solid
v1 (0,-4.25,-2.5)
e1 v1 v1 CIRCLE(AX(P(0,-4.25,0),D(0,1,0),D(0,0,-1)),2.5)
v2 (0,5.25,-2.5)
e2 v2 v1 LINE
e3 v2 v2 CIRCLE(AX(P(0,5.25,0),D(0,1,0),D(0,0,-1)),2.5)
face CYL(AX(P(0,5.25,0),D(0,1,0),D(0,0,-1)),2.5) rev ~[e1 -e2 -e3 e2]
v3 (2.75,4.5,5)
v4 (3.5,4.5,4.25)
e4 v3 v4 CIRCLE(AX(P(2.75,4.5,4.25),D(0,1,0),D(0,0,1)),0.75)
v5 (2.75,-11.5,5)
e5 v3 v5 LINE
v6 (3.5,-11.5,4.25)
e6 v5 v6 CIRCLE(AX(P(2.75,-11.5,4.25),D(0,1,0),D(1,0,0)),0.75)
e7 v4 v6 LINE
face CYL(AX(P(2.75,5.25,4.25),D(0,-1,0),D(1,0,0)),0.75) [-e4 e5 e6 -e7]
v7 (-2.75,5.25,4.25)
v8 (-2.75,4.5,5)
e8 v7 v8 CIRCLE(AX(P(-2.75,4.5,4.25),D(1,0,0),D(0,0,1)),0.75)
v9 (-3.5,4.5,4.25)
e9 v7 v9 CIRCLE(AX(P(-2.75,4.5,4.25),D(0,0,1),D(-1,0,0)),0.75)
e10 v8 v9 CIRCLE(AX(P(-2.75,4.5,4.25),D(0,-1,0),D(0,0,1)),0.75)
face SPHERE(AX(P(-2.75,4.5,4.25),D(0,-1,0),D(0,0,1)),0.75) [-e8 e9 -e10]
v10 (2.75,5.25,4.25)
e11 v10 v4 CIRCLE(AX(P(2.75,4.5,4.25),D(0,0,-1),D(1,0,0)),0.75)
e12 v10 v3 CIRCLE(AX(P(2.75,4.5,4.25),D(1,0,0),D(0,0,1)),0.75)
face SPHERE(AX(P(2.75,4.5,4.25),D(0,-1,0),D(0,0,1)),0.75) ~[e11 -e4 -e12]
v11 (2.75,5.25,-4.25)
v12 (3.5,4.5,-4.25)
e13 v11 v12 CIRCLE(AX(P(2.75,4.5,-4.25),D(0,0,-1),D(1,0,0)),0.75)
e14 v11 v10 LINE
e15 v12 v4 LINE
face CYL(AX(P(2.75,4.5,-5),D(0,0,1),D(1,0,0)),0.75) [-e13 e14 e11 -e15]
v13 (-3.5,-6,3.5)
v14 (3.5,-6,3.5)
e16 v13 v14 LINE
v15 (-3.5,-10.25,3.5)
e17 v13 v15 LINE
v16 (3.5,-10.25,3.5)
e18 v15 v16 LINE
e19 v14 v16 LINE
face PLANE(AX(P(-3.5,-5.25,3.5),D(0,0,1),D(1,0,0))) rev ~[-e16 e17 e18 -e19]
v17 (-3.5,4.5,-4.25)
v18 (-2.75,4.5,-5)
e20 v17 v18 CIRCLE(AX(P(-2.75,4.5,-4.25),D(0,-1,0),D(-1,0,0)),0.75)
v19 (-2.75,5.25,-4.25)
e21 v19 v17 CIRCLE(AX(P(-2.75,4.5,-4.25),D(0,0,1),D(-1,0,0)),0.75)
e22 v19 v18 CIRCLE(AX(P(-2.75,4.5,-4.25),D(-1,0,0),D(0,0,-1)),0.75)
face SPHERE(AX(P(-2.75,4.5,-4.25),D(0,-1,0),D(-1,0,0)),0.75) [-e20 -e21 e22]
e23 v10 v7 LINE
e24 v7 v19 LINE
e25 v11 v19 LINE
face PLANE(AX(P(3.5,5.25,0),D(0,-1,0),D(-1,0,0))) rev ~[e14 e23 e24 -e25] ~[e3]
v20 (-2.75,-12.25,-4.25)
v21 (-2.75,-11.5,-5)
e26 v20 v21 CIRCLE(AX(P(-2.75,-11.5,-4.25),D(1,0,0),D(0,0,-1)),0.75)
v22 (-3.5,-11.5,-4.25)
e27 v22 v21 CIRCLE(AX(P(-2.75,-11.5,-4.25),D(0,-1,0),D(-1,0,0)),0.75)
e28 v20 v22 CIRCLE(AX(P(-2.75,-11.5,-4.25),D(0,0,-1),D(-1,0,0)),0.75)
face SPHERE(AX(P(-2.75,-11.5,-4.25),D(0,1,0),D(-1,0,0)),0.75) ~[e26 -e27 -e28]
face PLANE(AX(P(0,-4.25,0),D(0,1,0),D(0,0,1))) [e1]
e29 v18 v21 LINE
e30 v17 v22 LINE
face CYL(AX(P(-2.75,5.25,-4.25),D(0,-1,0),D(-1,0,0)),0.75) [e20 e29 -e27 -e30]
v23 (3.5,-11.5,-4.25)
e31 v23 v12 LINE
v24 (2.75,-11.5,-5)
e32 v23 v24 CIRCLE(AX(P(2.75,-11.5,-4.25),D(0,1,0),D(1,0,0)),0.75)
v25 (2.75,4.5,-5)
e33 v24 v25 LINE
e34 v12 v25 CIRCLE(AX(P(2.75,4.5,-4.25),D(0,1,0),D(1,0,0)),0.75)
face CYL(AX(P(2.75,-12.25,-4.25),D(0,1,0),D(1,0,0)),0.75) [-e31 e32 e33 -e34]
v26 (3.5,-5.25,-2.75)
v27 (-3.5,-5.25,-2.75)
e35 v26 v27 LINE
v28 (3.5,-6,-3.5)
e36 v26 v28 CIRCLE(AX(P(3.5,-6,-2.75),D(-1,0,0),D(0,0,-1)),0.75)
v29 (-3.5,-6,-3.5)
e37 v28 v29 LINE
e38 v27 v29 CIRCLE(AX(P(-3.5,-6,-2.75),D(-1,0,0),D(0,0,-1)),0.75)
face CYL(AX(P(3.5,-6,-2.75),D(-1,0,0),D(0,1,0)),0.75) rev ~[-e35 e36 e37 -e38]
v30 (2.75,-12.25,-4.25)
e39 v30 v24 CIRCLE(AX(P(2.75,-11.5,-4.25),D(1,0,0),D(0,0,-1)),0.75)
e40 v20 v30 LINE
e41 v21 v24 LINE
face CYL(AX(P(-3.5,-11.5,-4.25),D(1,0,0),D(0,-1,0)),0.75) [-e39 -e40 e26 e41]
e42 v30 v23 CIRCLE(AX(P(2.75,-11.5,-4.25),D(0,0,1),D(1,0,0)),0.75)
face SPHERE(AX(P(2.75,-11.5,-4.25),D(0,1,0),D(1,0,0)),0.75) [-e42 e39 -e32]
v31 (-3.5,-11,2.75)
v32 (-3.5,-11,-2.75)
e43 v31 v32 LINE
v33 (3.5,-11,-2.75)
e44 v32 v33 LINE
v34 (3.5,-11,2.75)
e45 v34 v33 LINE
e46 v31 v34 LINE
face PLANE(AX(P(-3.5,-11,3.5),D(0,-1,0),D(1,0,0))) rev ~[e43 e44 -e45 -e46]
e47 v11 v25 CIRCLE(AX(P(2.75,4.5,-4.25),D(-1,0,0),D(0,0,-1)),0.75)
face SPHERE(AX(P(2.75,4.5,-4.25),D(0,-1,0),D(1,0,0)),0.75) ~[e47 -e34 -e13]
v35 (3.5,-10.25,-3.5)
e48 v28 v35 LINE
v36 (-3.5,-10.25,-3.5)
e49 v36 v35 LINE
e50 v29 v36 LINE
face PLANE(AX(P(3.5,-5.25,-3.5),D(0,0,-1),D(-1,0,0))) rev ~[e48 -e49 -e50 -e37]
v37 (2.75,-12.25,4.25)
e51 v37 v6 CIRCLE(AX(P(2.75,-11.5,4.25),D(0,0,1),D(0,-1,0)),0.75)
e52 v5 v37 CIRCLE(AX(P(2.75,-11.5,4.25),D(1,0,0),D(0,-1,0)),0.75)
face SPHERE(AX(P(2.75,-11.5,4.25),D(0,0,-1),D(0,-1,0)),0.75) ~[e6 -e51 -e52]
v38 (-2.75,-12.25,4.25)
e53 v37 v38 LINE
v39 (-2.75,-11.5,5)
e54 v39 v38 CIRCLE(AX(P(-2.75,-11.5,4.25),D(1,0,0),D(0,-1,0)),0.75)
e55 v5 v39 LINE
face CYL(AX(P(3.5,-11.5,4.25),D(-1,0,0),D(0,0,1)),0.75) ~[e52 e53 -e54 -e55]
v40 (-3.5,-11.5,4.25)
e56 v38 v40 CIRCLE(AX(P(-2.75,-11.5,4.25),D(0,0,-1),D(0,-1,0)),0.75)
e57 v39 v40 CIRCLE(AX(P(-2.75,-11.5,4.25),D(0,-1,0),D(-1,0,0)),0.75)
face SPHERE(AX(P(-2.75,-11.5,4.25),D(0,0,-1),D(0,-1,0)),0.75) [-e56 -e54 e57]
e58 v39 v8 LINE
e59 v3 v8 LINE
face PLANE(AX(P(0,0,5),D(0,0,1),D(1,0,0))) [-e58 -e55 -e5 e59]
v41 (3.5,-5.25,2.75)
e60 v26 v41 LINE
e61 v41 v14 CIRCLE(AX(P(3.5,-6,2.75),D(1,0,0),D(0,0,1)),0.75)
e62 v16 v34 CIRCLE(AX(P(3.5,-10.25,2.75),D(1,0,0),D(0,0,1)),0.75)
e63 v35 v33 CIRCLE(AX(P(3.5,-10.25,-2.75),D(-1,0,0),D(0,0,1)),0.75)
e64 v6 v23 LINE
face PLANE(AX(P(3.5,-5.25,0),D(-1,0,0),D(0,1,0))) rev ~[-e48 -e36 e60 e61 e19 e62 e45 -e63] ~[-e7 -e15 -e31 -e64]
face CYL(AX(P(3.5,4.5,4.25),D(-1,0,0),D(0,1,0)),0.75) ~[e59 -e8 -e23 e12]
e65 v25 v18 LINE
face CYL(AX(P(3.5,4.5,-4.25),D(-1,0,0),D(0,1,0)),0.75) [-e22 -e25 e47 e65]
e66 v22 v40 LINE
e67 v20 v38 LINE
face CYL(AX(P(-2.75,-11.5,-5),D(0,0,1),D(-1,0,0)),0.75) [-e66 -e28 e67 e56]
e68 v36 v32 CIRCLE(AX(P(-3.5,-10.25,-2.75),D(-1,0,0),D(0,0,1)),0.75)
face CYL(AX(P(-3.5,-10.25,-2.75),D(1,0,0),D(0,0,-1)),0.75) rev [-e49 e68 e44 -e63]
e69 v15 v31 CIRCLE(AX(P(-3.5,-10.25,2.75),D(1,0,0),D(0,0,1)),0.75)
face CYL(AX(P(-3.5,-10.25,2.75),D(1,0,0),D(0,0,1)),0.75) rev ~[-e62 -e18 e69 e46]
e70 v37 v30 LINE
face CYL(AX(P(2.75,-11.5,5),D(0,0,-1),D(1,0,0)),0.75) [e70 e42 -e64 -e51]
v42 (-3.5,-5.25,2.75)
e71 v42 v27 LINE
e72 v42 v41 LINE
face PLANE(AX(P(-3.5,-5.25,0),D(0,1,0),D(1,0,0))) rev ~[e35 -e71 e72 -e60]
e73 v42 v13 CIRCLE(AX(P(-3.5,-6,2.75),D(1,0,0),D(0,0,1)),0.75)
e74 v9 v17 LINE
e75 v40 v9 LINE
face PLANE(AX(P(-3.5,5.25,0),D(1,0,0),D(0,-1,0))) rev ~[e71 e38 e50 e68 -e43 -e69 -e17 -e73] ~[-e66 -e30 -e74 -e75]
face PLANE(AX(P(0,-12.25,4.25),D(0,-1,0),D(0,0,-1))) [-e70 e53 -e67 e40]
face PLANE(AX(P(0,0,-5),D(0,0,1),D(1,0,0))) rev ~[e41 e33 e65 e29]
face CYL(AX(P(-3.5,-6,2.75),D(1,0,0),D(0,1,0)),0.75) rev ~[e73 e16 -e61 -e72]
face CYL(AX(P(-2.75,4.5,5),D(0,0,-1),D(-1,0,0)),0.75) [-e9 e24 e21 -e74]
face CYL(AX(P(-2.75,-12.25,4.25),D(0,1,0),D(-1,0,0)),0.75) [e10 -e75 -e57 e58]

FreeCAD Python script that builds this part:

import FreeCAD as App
import Part
import Sketcher
from FreeCAD import Vector
Q = App.Units.Quantity


def edges_at(feature, points):
    """Names of the edges that pass closest to the given points."""
    edges = feature.Shape.Edges
    near = lambda p: min(range(len(edges)), key=lambda i: edges[i].distToShape(Part.Vertex(*p))[0])
    return sorted({f"Edge{near(p) + 1}" for p in points})

doc = App.newDocument("Part")
params = doc.addObject("Spreadsheet::Sheet", "Params")
for row, (alias, value) in enumerate([
    ("sketch1_width", "7 mm"),
    ("sketch1_height", "10.5 mm"),
    ("pad1_length", "10 mm"),
    ("sketch2_diameter", "5 mm"),
    ("pocket1_length", "9.5 mm"),
    ("sketch3_width", "7 mm"),
    ("sketch3_height", "1.5 mm"),
    ("pad2_length", "7 mm"),
    ("sketch4_width", "7 mm"),
    ("sketch4_height", "1.25 mm"),
    ("pad3_length", "7 mm"),
    ("fillet_radius", "0.75 mm"),
], start=1):
    params.set(f"A{row}", alias)
    params.set(f"B{row}", "=" + value)
    params.setAlias(f"B{row}", alias)

body = doc.addObject("PartDesign::Body", "Body")

sketch1 = doc.addObject("Sketcher::SketchObject", "Sketch")
body.addObject(sketch1)
sketch1.AttachmentSupport = (doc.XY_Plane, [""])
sketch1.MapMode = "FlatFace"
sketch1.addGeometry(Part.LineSegment(Vector(-4, 5, 0), Vector(-4, -5, 0)), False)
sketch1.addGeometry(Part.LineSegment(Vector(-4, -5, 0), Vector(4, -5, 0)), False)
sketch1.addGeometry(Part.LineSegment(Vector(4, -5, 0), Vector(4, 5, 0)), False)
sketch1.addGeometry(Part.LineSegment(Vector(4, 5, 0), Vector(-4, 5, 0)), False)
sketch1.addConstraint(Sketcher.Constraint("Coincident", 0, 2, 1, 1))
sketch1.addConstraint(Sketcher.Constraint("Coincident", 1, 2, 2, 1))
sketch1.addConstraint(Sketcher.Constraint("Coincident", 2, 2, 3, 1))
sketch1.addConstraint(Sketcher.Constraint("Coincident", 3, 2, 0, 1))
sketch1.addConstraint(Sketcher.Constraint("Vertical", 0))
sketch1.addConstraint(Sketcher.Constraint("Horizontal", 1))
sketch1.addConstraint(Sketcher.Constraint("Vertical", 2))
sketch1.addConstraint(Sketcher.Constraint("Horizontal", 3))
sketch1.addConstraint(Sketcher.Constraint("Symmetric", 0, 2, 2, 2, -1, 1))
sketch1.addConstraint(Sketcher.Constraint("DistanceX", 1, 1, 1, 2, Q("7 mm")))
sketch1.addConstraint(Sketcher.Constraint("DistanceY", 0, 2, 0, 1, Q("10.5 mm")))
sketch1.setExpression("Constraints[9]", "Params.sketch1_width")
sketch1.setExpression("Constraints[10]", "Params.sketch1_height")
pad1 = doc.addObject("PartDesign::Pad", "Pad")
body.addObject(pad1)
pad1.Profile = sketch1
pad1.setExpression("Length", "Params.pad1_length")
pad1.Midplane = True

sketch2 = doc.addObject("Sketcher::SketchObject", "Sketch001")
body.addObject(sketch2)
sketch2.AttachmentSupport = (doc.XZ_Plane, [""])
sketch2.MapMode = "FlatFace"
sketch2.AttachmentOffset = App.Placement(Vector(0, 0, -5.25), App.Rotation())
sketch2.addGeometry(Part.Circle(Vector(0, 0, 0), Vector(0, 0, 1), 2.5), False)
sketch2.addConstraint(Sketcher.Constraint("Coincident", 0, 3, -1, 1))
sketch2.addConstraint(Sketcher.Constraint("Diameter", 0, Q("5 mm")))
sketch2.setExpression("Constraints[1]", "Params.sketch2_diameter")
pocket1 = doc.addObject("PartDesign::Pocket", "Pocket")
body.addObject(pocket1)
pocket1.Profile = sketch2
pocket1.setExpression("Length", "Params.pocket1_length")
pocket1.Reversed = True

sketch3 = doc.addObject("Sketcher::SketchObject", "Sketch002")
body.addObject(sketch3)
sketch3.AttachmentSupport = (doc.XZ_Plane, [""])
sketch3.MapMode = "FlatFace"
sketch3.AttachmentOffset = App.Placement(Vector(0, 0, 5.25), App.Rotation())
sketch3.addGeometry(Part.LineSegment(Vector(3.5, -5, 0), Vector(3.5, -3.5, 0)), False)
sketch3.addGeometry(Part.LineSegment(Vector(3.5, -3.5, 0), Vector(-3.5, -3.5, 0)), False)
sketch3.addGeometry(Part.LineSegment(Vector(-3.5, -3.5, 0), Vector(-3.5, -5, 0)), False)
sketch3.addGeometry(Part.LineSegment(Vector(-3.5, -5, 0), Vector(3.5, -5, 0)), False)
sketch3.addGeometry(Part.LineSegment(Vector(-3.5, 5, 0), Vector(-3.5, 3.5, 0)), False)
sketch3.addGeometry(Part.LineSegment(Vector(-3.5, 3.5, 0), Vector(3.5, 3.5, 0)), False)
sketch3.addGeometry(Part.LineSegment(Vector(3.5, 3.5, 0), Vector(3.5, 5, 0)), False)
sketch3.addGeometry(Part.LineSegment(Vector(3.5, 5, 0), Vector(-3.5, 5, 0)), False)
sketch3.addConstraint(Sketcher.Constraint("Coincident", 0, 2, 1, 1))
sketch3.addConstraint(Sketcher.Constraint("Coincident", 1, 2, 2, 1))
sketch3.addConstraint(Sketcher.Constraint("Coincident", 2, 2, 3, 1))
sketch3.addConstraint(Sketcher.Constraint("Coincident", 3, 2, 0, 1))
sketch3.addConstraint(Sketcher.Constraint("Coincident", 4, 2, 5, 1))
sketch3.addConstraint(Sketcher.Constraint("Coincident", 5, 2, 6, 1))
sketch3.addConstraint(Sketcher.Constraint("Coincident", 6, 2, 7, 1))
sketch3.addConstraint(Sketcher.Constraint("Coincident", 7, 2, 4, 1))
sketch3.addConstraint(Sketcher.Constraint("Vertical", 0))
sketch3.addConstraint(Sketcher.Constraint("Horizontal", 1))
sketch3.addConstraint(Sketcher.Constraint("Vertical", 2))
sketch3.addConstraint(Sketcher.Constraint("Horizontal", 3))
sketch3.addConstraint(Sketcher.Constraint("Vertical", 4))
sketch3.addConstraint(Sketcher.Constraint("Horizontal", 5))
sketch3.addConstraint(Sketcher.Constraint("Vertical", 6))
sketch3.addConstraint(Sketcher.Constraint("Horizontal", 7))
sketch3.addConstraint(Sketcher.Constraint("Symmetric", 0, 2, 4, 2, -1, 1))
sketch3.addConstraint(Sketcher.Constraint("Symmetric", 2, 2, 6, 2, -1, 1))
sketch3.addConstraint(Sketcher.Constraint("Vertical", 2, 2, 4, 2))
sketch3.addConstraint(Sketcher.Constraint("DistanceX", 1, 2, 1, 1, Q("7 mm")))
sketch3.addConstraint(Sketcher.Constraint("DistanceY", 0, 1, 0, 2, Q("1.5 mm")))
sketch3.addConstraint(Sketcher.Constraint("DistanceY", 2, 2, -1, 1, Q("5 mm")))
sketch3.setExpression("Constraints[19]", "Params.sketch3_width")
sketch3.setExpression("Constraints[20]", "Params.sketch3_height")
pad2 = doc.addObject("PartDesign::Pad", "Pad001")
body.addObject(pad2)
pad2.Profile = sketch3
pad2.setExpression("Length", "Params.pad2_length")

sketch4 = doc.addObject("Sketcher::SketchObject", "Sketch003")
body.addObject(sketch4)
sketch4.AttachmentSupport = (doc.XY_Plane, [""])
sketch4.MapMode = "FlatFace"
sketch4.AttachmentOffset = App.Placement(Vector(0, 0, 3.5), App.Rotation())
sketch4.addGeometry(Part.LineSegment(Vector(-3.5, -11, 0), Vector(3.5, -11, 0)), False)
sketch4.addGeometry(Part.LineSegment(Vector(3.5, -11, 0), Vector(3.5, -12.2, 0)), False)
sketch4.addGeometry(Part.LineSegment(Vector(3.5, -12.2, 0), Vector(-3.5, -12.2, 0)), False)
sketch4.addGeometry(Part.LineSegment(Vector(-3.5, -12.2, 0), Vector(-3.5, -11, 0)), False)
sketch4.addConstraint(Sketcher.Constraint("Coincident", 0, 2, 1, 1))
sketch4.addConstraint(Sketcher.Constraint("Coincident", 1, 2, 2, 1))
sketch4.addConstraint(Sketcher.Constraint("Coincident", 2, 2, 3, 1))
sketch4.addConstraint(Sketcher.Constraint("Coincident", 3, 2, 0, 1))
sketch4.addConstraint(Sketcher.Constraint("Horizontal", 0))
sketch4.addConstraint(Sketcher.Constraint("Vertical", 1))
sketch4.addConstraint(Sketcher.Constraint("Horizontal", 2))
sketch4.addConstraint(Sketcher.Constraint("Vertical", 3))
sketch4.addConstraint(Sketcher.Constraint("DistanceX", 0, 1, 0, 2, Q("7 mm")))
sketch4.addConstraint(Sketcher.Constraint("DistanceY", 0, 2, -1, 1, Q("11 mm")))
sketch4.addConstraint(Sketcher.Constraint("DistanceY", 1, 2, 1, 1, Q("1.25 mm")))
sketch4.addConstraint(Sketcher.Constraint("DistanceX", -1, 1, 0, 2, Q("3.5 mm")))
sketch4.setExpression("Constraints[8]", "Params.sketch4_width")
sketch4.setExpression("Constraints[10]", "Params.sketch4_height")
pad3 = doc.addObject("PartDesign::Pad", "Pad002")
body.addObject(pad3)
pad3.Profile = sketch4
pad3.setExpression("Length", "Params.pad3_length")
pad3.Reversed = True
doc.recompute()

fillet = doc.addObject("PartDesign::Fillet", "Fillet")
body.addObject(fillet)
fillet.Base = (pad3, edges_at(pad3, [
    (3.5, -3.5, -5),
    (-3.5, -3.5, -5),
    (3.5, -12.25, 0),
    (-3.5, -12.25, 0),
    (0, -12.25, -5),
    (0, -12.25, 5),
    (-3.5, -3.5, 5),
    (0, -11, 3.5),
    (0, -11, -3.5),
    (0, -5.25, -3.5),
    (0, -5.25, 3.5),
    (3.5, -3.5, 5),
    (0, 5.25, 5),
    (-3.5, 5.25, 0),
    (3.5, 5.25, 0),
    (0, 5.25, -5),
]))
fillet.setExpression("Radius", "Params.fillet_radius")

doc.recompute()
